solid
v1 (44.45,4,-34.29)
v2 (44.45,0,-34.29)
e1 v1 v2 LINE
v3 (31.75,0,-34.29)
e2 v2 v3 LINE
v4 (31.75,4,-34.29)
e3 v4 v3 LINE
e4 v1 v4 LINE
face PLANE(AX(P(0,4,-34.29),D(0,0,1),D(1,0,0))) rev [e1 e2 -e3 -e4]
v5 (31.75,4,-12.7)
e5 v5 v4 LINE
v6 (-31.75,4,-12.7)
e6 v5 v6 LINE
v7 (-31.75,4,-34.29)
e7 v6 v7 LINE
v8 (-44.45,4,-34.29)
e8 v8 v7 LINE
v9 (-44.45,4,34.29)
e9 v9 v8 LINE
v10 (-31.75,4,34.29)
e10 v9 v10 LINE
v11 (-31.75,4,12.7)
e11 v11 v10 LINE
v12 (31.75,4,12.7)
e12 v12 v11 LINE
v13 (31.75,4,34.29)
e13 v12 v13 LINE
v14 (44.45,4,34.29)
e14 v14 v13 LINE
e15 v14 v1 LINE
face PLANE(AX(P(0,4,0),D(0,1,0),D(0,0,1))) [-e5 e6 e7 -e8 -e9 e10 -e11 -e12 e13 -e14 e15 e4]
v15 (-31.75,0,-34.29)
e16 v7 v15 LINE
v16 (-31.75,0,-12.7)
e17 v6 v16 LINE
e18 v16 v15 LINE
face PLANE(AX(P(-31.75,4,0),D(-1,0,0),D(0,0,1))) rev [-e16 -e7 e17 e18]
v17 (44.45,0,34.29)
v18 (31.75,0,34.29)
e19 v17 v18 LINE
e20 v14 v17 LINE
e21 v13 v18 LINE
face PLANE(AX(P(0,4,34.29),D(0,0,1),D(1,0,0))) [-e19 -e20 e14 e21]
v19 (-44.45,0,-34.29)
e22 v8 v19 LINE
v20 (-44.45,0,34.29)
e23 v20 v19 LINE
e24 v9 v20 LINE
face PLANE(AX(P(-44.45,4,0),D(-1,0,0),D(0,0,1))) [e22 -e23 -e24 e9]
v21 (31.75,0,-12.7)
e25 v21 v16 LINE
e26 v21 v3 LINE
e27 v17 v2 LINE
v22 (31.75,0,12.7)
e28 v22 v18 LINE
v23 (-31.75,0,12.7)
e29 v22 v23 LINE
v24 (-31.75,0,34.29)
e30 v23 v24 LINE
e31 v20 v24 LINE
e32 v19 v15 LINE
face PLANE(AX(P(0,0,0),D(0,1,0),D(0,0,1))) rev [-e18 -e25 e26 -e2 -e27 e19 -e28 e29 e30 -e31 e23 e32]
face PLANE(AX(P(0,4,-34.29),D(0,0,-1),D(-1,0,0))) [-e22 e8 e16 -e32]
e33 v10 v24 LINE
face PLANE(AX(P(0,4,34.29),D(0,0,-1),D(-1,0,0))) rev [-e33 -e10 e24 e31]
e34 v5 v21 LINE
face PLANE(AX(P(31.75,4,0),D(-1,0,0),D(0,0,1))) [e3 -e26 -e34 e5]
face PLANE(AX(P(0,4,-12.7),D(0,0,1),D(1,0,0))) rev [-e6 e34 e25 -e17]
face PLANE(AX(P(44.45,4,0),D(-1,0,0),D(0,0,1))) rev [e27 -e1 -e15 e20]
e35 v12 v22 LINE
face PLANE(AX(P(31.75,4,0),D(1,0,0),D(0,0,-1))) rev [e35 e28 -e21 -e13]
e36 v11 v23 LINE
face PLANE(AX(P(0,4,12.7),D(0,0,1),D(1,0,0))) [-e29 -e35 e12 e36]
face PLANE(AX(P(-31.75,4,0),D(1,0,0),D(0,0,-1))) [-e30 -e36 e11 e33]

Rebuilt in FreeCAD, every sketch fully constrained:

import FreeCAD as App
import Part
import Sketcher

V = App.Vector
Q = App.Units.Quantity


def add_polygon(sketch, points):
    """Adds a closed chain of lines whose ends are joined by coincident constraints."""
    first, n = sketch.GeometryCount, len(points)
    for a, b in zip(points, points[1:] + points[:1]):
        sketch.addGeometry(Part.LineSegment(App.Vector(*a, 0), App.Vector(*b, 0)), False)
    for i in range(n):
        sketch.addConstraint(Sketcher.Constraint("Coincident", first + i, 2, first + (i + 1) % n, 1))

doc = App.newDocument("Part")
body = doc.addObject("PartDesign::Body", "Body")

sketch1 = body.newObject("Sketcher::SketchObject", "Sketch")
sketch1.AttachmentSupport = (doc.getObject("XZ_Plane"), [""])
sketch1.MapMode = "FlatFace"
add_polygon(sketch1, [(-44, 13), (44, 13), (44, -13), (-32, -13), (-32, -34), (-44, -34)])
sketch1.addConstraint([
    Sketcher.Constraint("Horizontal", 0),
    Sketcher.Constraint("Vertical", 1),
    Sketcher.Constraint("Horizontal", 2),
    Sketcher.Constraint("Vertical", 3),
    Sketcher.Constraint("Horizontal", 4),
    Sketcher.Constraint("Vertical", 5),
    Sketcher.Constraint("Symmetric", 1, 2, 5, 2, -1, 1),
    Sketcher.Constraint("DistanceX", 2, 2, 2, 1, Q("3 in")),
    Sketcher.Constraint("DistanceY", 1, 2, 1, 1, Q("1 in")),
    Sketcher.Constraint("DistanceX", 0, 1, 0, 2, Q("3.5 in")),
    Sketcher.Constraint("DistanceY", 3, 2, 3, 1, Q("0.85 in")),
])
pad1 = body.newObject("PartDesign::Pad", "Pad")
pad1.Profile = sketch1
pad1.Length = 4
pad1.Reversed = True
doc.recompute()

mirrored = body.newObject("PartDesign::Mirrored", "Mirrored")
mirrored.Originals = [pad1]
mirrored.MirrorPlane = (doc.getObject("YZ_Plane"), [""])
body.Tip = mirrored
doc.recompute()

mirrored2 = body.newObject("PartDesign::Mirrored", "Mirrored001")
mirrored2.Originals = [pad1]
mirrored2.MirrorPlane = (doc.getObject("XY_Plane"), [""])
body.Tip = mirrored2
doc.recompute()

mirrored3 = body.newObject("PartDesign::Mirrored", "Mirrored002")
mirrored3.Originals = [pad1]
mirrored3.MirrorPlane = (doc.getObject("YZ_Plane"), [""])
body.Tip = mirrored3

sketch2 = body.newObject("Sketcher::SketchObject", "Sketch001")
sketch2.AttachmentSupport = (doc.getObject("XZ_Plane"), [""])
sketch2.MapMode = "FlatFace"
add_polygon(sketch2, [(44, -13), (-44, -13), (-44, 13), (32, 13), (32, 34), (44, 34)])
sketch2.addConstraint([
    Sketcher.Constraint("Horizontal", 0),
    Sketcher.Constraint("Vertical", 1),
    Sketcher.Constraint("Horizontal", 2),
    Sketcher.Constraint("Vertical", 3),
    Sketcher.Constraint("Horizontal", 4),
    Sketcher.Constraint("Vertical", 5),
    Sketcher.Constraint("Symmetric", 1, 2, 5, 2, -1, 1),
    Sketcher.Constraint("DistanceX", 2, 1, 2, 2, Q("3 in")),
    Sketcher.Constraint("DistanceY", 1, 1, 1, 2, Q("1 in")),
    Sketcher.Constraint("DistanceX", 0, 2, 0, 1, Q("3.5 in")),
    Sketcher.Constraint("DistanceY", 3, 1, 3, 2, Q("0.85 in")),
])
pad2 = body.newObject("PartDesign::Pad", "Pad001")
pad2.Profile = sketch2
pad2.Length = 4
pad2.Reversed = True

doc.recompute()
